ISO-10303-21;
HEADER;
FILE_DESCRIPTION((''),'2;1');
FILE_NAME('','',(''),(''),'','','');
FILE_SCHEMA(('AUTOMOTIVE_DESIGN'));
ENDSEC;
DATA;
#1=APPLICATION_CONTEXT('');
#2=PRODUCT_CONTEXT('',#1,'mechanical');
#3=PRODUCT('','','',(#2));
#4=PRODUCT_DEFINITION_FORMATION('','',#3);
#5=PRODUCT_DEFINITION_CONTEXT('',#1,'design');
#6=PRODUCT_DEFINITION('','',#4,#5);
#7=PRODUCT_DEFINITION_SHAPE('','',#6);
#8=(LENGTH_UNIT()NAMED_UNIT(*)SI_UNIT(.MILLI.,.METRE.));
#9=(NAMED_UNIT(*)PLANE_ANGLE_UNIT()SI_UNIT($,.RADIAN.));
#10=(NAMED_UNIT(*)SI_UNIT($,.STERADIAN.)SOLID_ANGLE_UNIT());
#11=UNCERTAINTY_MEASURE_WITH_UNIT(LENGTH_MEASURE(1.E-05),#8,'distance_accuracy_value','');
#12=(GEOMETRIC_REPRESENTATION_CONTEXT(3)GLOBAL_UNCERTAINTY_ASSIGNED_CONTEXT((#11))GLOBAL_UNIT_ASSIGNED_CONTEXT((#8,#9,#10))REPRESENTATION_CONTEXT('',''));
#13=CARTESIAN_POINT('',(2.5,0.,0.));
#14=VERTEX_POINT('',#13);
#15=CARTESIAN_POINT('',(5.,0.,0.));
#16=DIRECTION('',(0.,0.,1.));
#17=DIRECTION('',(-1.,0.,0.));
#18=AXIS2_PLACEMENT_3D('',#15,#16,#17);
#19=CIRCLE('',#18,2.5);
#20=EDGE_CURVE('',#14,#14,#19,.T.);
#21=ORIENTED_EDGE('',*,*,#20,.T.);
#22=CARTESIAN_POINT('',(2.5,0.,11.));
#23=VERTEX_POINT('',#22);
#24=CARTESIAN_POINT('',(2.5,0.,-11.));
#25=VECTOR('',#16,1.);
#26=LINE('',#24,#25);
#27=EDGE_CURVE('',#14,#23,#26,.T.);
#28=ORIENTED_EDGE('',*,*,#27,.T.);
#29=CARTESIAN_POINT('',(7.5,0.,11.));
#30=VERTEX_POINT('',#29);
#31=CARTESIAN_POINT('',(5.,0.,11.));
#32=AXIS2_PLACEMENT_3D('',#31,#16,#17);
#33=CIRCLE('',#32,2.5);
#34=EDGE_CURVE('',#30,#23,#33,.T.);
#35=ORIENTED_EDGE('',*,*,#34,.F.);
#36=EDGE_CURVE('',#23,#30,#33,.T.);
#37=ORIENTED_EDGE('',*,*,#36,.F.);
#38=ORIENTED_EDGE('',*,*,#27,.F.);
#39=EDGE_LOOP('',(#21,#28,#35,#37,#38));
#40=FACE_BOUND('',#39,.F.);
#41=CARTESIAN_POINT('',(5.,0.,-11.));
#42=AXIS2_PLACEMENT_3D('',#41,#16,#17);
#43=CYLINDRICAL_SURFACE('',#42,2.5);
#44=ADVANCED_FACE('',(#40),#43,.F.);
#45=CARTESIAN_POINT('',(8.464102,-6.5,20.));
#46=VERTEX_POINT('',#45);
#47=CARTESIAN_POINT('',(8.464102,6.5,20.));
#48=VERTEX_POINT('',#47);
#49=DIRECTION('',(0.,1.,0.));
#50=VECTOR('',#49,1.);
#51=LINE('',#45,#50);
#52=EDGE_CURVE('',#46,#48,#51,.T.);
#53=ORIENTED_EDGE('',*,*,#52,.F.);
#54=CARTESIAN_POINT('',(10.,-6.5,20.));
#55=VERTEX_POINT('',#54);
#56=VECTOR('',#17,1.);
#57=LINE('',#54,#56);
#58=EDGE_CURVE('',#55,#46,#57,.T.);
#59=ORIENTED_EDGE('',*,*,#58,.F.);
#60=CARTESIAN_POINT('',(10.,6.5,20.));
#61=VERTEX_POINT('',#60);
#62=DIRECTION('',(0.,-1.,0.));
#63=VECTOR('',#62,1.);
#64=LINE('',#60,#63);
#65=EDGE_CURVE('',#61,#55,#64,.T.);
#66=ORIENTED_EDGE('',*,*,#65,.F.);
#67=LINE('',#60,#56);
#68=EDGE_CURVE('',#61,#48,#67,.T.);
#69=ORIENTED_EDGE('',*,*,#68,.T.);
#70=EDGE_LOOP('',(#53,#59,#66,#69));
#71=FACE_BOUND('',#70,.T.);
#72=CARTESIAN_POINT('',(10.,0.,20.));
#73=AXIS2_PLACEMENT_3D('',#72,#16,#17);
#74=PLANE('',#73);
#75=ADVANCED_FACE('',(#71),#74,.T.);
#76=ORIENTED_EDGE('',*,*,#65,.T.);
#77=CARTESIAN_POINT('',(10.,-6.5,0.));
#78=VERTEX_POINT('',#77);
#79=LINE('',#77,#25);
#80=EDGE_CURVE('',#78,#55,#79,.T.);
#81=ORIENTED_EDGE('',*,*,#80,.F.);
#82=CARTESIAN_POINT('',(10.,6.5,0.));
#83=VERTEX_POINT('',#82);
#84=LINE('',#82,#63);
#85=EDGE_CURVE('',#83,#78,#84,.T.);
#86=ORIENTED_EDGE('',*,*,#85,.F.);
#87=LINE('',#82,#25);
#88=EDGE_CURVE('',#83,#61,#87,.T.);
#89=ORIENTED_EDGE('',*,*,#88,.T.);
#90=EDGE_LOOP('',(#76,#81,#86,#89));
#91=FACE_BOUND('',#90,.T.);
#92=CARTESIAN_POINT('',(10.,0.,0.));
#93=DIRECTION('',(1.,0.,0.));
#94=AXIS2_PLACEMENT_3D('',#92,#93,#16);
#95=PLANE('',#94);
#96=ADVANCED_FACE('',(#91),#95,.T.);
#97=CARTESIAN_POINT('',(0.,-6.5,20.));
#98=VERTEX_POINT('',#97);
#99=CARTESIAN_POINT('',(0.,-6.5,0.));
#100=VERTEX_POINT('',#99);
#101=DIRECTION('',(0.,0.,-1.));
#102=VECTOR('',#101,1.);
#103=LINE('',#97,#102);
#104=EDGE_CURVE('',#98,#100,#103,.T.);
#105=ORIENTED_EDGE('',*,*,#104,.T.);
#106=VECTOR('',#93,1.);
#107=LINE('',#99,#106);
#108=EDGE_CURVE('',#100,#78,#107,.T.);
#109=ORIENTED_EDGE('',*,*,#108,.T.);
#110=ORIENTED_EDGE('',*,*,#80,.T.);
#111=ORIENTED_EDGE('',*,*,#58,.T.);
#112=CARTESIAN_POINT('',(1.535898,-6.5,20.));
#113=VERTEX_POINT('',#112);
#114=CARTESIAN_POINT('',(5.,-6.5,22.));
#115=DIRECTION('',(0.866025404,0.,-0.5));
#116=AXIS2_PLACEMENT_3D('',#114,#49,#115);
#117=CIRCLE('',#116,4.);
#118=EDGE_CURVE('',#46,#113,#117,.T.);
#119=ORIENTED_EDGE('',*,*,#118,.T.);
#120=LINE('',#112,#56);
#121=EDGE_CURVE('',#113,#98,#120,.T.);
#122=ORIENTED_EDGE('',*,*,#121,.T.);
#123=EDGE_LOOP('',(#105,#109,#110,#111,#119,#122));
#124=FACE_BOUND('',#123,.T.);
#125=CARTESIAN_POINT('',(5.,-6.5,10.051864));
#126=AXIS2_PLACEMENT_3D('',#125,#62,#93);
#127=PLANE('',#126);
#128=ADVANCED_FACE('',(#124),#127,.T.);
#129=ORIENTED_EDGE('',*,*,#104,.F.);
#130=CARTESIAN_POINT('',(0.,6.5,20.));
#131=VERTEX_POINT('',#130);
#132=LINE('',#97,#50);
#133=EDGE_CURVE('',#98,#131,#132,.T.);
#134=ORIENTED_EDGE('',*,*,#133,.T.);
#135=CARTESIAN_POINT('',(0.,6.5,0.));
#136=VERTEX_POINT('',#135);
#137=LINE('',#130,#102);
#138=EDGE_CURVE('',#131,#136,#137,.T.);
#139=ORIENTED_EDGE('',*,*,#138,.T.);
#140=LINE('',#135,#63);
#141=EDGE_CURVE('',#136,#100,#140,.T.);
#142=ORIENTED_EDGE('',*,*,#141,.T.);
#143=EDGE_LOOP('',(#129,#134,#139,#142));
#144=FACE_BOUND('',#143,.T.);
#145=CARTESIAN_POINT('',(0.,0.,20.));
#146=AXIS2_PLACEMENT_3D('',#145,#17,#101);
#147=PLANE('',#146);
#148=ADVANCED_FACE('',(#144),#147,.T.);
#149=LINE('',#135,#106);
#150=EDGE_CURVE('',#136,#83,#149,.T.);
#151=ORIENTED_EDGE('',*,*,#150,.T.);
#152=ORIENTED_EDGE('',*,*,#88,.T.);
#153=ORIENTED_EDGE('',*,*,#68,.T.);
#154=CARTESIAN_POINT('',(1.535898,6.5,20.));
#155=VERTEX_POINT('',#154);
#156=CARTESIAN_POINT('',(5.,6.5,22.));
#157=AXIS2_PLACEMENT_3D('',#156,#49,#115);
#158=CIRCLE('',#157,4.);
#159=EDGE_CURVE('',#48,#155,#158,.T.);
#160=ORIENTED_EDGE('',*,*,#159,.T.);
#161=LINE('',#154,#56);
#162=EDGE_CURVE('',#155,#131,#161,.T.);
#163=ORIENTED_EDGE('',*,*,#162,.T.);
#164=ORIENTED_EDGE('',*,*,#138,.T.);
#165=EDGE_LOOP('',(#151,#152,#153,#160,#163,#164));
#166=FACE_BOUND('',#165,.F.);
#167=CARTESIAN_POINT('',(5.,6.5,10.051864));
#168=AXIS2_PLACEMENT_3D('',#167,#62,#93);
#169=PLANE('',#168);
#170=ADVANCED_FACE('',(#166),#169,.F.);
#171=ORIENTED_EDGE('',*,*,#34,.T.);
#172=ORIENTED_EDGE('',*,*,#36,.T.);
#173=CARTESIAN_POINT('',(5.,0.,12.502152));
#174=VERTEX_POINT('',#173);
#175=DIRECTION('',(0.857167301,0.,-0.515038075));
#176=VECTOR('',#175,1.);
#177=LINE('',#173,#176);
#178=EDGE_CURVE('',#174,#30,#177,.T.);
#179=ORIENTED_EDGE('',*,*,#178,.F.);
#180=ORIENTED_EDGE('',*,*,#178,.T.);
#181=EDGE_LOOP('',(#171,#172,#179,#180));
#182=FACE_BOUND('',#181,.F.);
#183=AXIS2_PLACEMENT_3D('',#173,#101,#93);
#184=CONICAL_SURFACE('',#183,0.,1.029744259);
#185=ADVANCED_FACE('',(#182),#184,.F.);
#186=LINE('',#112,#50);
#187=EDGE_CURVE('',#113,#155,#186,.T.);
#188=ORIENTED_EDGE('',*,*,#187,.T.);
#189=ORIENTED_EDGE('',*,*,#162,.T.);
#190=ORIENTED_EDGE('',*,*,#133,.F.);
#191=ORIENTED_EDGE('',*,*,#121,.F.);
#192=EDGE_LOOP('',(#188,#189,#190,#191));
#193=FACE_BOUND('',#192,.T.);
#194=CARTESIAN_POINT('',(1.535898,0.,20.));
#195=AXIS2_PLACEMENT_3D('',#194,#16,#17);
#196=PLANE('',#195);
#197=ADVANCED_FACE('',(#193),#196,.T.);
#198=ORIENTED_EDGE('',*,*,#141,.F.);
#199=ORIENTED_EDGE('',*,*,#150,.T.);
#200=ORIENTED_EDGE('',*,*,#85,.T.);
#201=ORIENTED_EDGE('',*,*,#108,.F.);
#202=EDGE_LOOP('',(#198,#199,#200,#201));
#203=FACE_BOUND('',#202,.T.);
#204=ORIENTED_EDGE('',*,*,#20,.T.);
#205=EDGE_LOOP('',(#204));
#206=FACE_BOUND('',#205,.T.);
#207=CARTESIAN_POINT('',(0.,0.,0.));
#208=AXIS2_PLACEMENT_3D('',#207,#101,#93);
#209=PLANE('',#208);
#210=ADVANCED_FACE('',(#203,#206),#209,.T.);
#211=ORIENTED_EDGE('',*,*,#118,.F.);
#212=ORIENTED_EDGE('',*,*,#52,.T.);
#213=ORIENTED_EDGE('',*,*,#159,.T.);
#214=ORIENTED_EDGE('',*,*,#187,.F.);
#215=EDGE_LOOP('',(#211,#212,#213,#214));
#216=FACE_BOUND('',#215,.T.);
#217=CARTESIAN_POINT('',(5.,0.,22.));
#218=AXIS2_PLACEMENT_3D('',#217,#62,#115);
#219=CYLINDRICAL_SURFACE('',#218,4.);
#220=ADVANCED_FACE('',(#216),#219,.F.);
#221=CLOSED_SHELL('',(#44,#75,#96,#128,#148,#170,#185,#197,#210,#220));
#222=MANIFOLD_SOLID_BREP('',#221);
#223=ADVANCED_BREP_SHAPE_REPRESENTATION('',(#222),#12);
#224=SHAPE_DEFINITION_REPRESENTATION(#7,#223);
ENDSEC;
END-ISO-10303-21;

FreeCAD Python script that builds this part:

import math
import FreeCAD as App
import Part
import Sketcher

V = App.Vector

doc = App.newDocument("Part")
params = doc.addObject("Spreadsheet::Sheet", "Params")
for row, (alias, value) in enumerate([
    ("sketch1_radius", "4 mm"),
    ("sketch1_width", "10 mm"),
    ("sketch1_height", "20 mm"),
    ("pad1_length", "13 mm"),
    ("sketch2_diameter", "5 mm"),
    ("hole_diameter", "5 mm"),
    ("hole_depth", "11 mm"),
], start=1):
    params.set(f"A{row}", alias)
    params.set(f"B{row}", "=" + value)
    params.setAlias(f"B{row}", alias)

body = doc.addObject("PartDesign::Body", "Body")

# Sketch on XZ plane
sketch1 = body.newObject("Sketcher::SketchObject", "Sketch")
sketch1.AttachmentSupport = (doc.getObject("XZ_Plane"), [""])
sketch1.MapMode = "FlatFace"
sketch1.addGeometry(Part.LineSegment(V(0, 20, 0), V(0, 0, 0)), False)
sketch1.addGeometry(Part.LineSegment(V(0, 0, 0), V(10, 0, 0)), False)
sketch1.addGeometry(Part.LineSegment(V(10, 0, 0), V(10, 20, 0)), False)
sketch1.addGeometry(Part.LineSegment(V(10, 20, 0), V(8.464102, 20, 0)), False)
sketch1.addGeometry(Part.ArcOfCircle(Part.Circle(V(5, 22, 0), V(0, 0, 1), 4), math.radians(-150), math.radians(-30)), False)
sketch1.addGeometry(Part.LineSegment(V(1.535898, 20, 0), V(0, 20, 0)), False)
sketch1.addConstraint(Sketcher.Constraint("Coincident", 0, 2, 1, 1))
sketch1.addConstraint(Sketcher.Constraint("Coincident", 1, 2, 2, 1))
sketch1.addConstraint(Sketcher.Constraint("Coincident", 2, 2, 3, 1))
sketch1.addConstraint(Sketcher.Constraint("Coincident", 3, 2, 4, 2))
sketch1.addConstraint(Sketcher.Constraint("Coincident", 4, 1, 5, 1))
sketch1.addConstraint(Sketcher.Constraint("Coincident", 5, 2, 0, 1))
sketch1.addConstraint(Sketcher.Constraint("Vertical", 0))
sketch1.addConstraint(Sketcher.Constraint("Horizontal", 1))
sketch1.addConstraint(Sketcher.Constraint("Vertical", 2))
sketch1.addConstraint(Sketcher.Constraint("Horizontal", 3))
sketch1.addConstraint(Sketcher.Constraint("Horizontal", 5))
sketch1.addConstraint(Sketcher.Constraint("Coincident", 0, 2, -1, 1))
sketch1.addConstraint(Sketcher.Constraint("Horizontal", 3, 2, 4, 1))
sketch1.addConstraint(Sketcher.Constraint("Equal", 3, 5))
sketch1.addConstraint(Sketcher.Constraint("Radius", 4, 4.0))
sketch1.addConstraint(Sketcher.Constraint("DistanceX", 1, 1, 1, 2, 10.0))
sketch1.addConstraint(Sketcher.Constraint("DistanceY", 0, 2, 0, 1, 20.0))
sketch1.addConstraint(Sketcher.Constraint("DistanceY", -1, 1, 4, 3, 22.0))
sketch1.setExpression("Constraints[14]", "Params.sketch1_radius")
sketch1.setExpression("Constraints[15]", "Params.sketch1_width")
sketch1.setExpression("Constraints[16]", "Params.sketch1_height")
pad1 = body.newObject("PartDesign::Pad", "Pad")
pad1.Profile = sketch1
pad1.setExpression("Length", "Params.pad1_length")
pad1.Midplane = True

# Sketch on XY plane
sketch2 = body.newObject("Sketcher::SketchObject", "Sketch001")
sketch2.AttachmentSupport = (doc.getObject("XY_Plane"), [""])
sketch2.MapMode = "FlatFace"
sketch2.addGeometry(Part.Circle(V(5, 0, 0), V(0, 0, 1), 2.5), False)
sketch2.addConstraint(Sketcher.Constraint("PointOnObject", 0, 3, -1))
sketch2.addConstraint(Sketcher.Constraint("Diameter", 0, 5.0))
sketch2.addConstraint(Sketcher.Constraint("DistanceX", -1, 1, 0, 3, 5.0))
sketch2.setExpression("Constraints[1]", "Params.sketch2_diameter")
doc.recompute()
hole = body.newObject("PartDesign::Hole", "Hole")
hole.Profile = sketch2
hole.ThreadType = "None"
hole.setExpression("Diameter", "Params.hole_diameter")
hole.DepthType = "Dimension"
hole.setExpression("Depth", "Params.hole_depth")
hole.DrillPoint = "Angled"
hole.DrillPointAngle = 118
hole.Reversed = True

doc.recompute()
